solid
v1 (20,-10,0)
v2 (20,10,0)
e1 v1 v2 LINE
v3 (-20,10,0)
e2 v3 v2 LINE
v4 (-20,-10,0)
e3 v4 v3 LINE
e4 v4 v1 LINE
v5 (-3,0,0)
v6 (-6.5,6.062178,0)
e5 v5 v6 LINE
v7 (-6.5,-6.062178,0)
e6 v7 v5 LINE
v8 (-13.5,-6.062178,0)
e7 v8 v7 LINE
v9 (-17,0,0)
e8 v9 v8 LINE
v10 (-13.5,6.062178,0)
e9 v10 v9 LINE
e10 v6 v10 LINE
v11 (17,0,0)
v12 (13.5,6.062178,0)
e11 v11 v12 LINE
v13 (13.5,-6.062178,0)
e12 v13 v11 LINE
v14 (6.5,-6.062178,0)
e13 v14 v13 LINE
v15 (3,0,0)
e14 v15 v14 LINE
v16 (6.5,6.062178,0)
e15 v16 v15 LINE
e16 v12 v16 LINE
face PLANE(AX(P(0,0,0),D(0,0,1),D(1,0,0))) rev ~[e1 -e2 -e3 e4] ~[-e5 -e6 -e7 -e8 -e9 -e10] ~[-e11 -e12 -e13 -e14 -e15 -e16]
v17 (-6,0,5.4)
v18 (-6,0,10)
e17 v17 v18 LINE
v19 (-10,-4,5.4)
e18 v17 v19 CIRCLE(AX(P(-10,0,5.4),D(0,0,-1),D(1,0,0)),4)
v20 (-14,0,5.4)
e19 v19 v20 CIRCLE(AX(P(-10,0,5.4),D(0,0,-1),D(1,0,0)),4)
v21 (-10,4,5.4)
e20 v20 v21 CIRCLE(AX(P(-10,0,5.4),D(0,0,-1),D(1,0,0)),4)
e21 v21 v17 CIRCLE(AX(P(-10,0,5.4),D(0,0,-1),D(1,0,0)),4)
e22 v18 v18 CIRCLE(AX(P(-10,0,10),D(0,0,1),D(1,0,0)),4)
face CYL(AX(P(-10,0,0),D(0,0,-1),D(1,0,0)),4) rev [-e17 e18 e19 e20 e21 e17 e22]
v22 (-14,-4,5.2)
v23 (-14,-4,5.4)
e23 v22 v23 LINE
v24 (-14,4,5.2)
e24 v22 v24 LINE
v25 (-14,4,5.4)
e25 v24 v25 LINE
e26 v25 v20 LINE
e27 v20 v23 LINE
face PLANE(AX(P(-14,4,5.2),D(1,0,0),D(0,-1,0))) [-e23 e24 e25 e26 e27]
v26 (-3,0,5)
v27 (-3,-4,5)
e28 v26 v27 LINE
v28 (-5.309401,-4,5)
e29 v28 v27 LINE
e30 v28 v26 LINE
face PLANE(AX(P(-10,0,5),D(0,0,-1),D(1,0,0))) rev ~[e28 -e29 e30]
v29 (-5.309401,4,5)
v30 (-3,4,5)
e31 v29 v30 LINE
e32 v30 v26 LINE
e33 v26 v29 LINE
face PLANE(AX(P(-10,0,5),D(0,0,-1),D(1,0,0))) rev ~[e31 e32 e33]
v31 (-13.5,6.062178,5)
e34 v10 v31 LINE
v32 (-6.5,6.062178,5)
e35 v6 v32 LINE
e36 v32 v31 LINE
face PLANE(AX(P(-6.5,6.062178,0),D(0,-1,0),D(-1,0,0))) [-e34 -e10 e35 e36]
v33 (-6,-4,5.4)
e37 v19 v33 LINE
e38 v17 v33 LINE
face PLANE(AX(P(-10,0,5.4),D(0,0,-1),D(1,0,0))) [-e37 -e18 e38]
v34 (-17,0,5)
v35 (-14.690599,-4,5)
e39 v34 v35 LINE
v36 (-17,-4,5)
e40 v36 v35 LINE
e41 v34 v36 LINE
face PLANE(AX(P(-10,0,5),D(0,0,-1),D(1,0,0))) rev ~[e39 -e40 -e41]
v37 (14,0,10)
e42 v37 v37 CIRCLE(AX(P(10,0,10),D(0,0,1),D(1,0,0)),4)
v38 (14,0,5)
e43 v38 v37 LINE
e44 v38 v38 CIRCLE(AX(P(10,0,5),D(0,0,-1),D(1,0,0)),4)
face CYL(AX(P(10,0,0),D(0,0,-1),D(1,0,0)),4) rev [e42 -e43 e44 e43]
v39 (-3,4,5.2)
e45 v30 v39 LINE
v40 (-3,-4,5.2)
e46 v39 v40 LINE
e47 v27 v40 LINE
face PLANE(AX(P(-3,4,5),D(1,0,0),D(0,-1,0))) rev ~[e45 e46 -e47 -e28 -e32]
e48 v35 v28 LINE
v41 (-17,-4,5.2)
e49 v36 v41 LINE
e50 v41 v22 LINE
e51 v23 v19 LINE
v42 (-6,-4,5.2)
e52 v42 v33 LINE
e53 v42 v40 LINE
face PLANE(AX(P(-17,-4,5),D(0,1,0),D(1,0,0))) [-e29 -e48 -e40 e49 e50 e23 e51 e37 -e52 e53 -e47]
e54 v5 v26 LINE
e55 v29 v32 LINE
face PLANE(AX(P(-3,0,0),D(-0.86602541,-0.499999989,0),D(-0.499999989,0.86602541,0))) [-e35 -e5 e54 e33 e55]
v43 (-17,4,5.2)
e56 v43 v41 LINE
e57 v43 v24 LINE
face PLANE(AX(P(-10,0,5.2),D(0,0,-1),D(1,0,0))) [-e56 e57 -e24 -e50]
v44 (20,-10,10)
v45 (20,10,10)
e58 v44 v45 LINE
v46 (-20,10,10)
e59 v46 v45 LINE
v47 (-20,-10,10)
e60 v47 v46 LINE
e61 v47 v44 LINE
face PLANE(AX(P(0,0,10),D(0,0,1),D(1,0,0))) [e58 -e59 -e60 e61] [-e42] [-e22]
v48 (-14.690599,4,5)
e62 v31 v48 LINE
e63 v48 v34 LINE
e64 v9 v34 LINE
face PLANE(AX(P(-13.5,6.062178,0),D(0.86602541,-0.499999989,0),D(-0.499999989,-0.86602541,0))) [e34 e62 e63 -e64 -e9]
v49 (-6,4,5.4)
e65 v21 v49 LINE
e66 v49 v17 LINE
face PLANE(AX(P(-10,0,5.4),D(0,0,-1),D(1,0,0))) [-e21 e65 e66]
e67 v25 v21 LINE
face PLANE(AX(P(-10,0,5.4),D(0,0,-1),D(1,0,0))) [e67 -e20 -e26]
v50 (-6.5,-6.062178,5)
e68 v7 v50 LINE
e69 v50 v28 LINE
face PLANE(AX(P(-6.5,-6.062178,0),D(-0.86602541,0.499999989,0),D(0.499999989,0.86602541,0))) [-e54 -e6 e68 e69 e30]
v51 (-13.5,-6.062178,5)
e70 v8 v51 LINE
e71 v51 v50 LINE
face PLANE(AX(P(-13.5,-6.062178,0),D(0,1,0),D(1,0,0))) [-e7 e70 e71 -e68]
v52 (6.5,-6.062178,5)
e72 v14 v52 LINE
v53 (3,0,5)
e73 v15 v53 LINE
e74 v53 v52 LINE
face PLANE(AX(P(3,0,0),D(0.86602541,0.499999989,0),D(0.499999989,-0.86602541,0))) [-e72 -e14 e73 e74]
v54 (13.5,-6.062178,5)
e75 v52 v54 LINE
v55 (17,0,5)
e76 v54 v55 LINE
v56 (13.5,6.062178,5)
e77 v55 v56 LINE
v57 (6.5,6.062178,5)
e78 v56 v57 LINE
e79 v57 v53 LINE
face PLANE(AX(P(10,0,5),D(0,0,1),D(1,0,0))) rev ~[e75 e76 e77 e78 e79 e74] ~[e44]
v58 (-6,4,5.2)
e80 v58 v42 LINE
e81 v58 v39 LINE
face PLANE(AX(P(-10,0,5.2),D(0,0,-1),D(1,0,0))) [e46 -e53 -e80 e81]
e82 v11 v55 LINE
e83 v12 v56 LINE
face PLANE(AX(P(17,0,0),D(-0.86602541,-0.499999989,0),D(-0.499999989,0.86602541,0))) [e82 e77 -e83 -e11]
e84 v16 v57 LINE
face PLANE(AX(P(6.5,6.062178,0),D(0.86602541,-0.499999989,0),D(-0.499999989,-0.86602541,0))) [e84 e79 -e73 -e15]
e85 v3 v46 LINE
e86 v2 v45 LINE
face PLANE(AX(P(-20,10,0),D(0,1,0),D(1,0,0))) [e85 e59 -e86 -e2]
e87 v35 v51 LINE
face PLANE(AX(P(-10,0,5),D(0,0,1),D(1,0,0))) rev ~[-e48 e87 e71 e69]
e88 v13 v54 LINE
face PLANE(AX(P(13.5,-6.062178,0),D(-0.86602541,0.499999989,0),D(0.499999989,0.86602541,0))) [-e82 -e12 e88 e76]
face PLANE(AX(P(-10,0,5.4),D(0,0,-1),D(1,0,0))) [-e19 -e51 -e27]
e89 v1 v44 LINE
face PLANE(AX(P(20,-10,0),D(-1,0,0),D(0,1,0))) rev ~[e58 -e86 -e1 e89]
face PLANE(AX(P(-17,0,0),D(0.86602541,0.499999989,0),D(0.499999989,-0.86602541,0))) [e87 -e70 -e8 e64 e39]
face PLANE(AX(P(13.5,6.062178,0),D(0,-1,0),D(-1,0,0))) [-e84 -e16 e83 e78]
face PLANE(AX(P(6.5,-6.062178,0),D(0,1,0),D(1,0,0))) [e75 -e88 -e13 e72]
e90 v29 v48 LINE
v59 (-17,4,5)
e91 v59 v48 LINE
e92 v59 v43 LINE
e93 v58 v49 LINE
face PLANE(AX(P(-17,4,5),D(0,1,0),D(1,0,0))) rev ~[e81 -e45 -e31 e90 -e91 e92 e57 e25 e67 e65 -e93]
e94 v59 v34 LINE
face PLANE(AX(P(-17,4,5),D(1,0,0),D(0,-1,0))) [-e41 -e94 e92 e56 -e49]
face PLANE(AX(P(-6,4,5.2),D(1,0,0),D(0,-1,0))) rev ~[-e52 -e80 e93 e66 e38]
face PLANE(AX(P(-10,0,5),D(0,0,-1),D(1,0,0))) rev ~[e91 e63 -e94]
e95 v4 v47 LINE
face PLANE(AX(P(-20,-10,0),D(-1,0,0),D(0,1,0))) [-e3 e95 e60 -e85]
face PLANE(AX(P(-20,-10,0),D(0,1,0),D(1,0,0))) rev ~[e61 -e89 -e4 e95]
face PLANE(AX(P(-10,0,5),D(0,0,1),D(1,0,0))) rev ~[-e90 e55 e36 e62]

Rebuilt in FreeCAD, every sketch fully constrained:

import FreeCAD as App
import Part
import Sketcher

V = App.Vector
Q = App.Units.Quantity


def add_polygon(sketch, points):
    """Adds a closed chain of lines whose ends are joined by coincident constraints."""
    first, n = sketch.GeometryCount, len(points)
    for a, b in zip(points, points[1:] + points[:1]):
        sketch.addGeometry(Part.LineSegment(App.Vector(*a, 0), App.Vector(*b, 0)), False)
    for i in range(n):
        sketch.addConstraint(Sketcher.Constraint("Coincident", first + i, 2, first + (i + 1) % n, 1))

doc = App.newDocument("Part")
body = doc.addObject("PartDesign::Body", "Body")

# Sketch on XY plane
sketch1 = body.newObject("Sketcher::SketchObject", "Sketch")
sketch1.AttachmentSupport = (doc.getObject("XY_Plane"), [""])
sketch1.MapMode = "FlatFace"
add_polygon(sketch1, [(-20, 10), (-20, -10), (20, -10), (20, 10)])  # lines 0-3
sketch1.addGeometry(Part.Circle(V(-10, 0, 0), V(0, 0, 1), 4), False)  # 4
sketch1.addGeometry(Part.Circle(V(10, 0, 0), V(0, 0, 1), 4), False)  # 5
sketch1.addConstraint(Sketcher.Constraint("Vertical", 0))
sketch1.addConstraint(Sketcher.Constraint("Horizontal", 1))
sketch1.addConstraint(Sketcher.Constraint("Vertical", 2))
sketch1.addConstraint(Sketcher.Constraint("Horizontal", 3))
sketch1.addConstraint(Sketcher.Constraint("Equal", 4, 5))
sketch1.addConstraint(Sketcher.Constraint("Symmetric", 4, 3, 5, 3, -1, 1))
sketch1.addConstraint(Sketcher.Constraint("Symmetric", 0, 2, 2, 2, -1, 1))
sketch1.addConstraint(Sketcher.Constraint("PointOnObject", 4, 3, -1))
sketch1.addConstraint(Sketcher.Constraint("Diameter", 4, 8.0))
sketch1.addConstraint(Sketcher.Constraint("DistanceX", 1, 1, 1, 2, 40.0))
sketch1.addConstraint(Sketcher.Constraint("DistanceY", 0, 2, 0, 1, 20.0))
sketch1.addConstraint(Sketcher.Constraint("DistanceX", 4, 3, -1, 1, 10.0))
pad1 = body.newObject("PartDesign::Pad", "Pad")
pad1.Profile = sketch1
pad1.Length = 10

# Sketch on XY plane
sketch2 = body.newObject("Sketcher::SketchObject", "Sketch001")
sketch2.AttachmentSupport = (doc.getObject("XY_Plane"), [""])
sketch2.MapMode = "FlatFace"
add_polygon(sketch2, [(-6, 6), (-14, 6), (-17, 0), (-14, -6), (-6, -6), (-3, 0)])  # lines 0-5
add_polygon(sketch2, [(14, 6), (6, 6), (3, 0), (6, -6), (14, -6), (17, 0)])  # lines 6-11
sketch2.addConstraint(Sketcher.Constraint("Horizontal", 0))
sketch2.addConstraint(Sketcher.Constraint("Horizontal", 3))
sketch2.addConstraint(Sketcher.Constraint("Horizontal", 6))
sketch2.addConstraint(Sketcher.Constraint("Horizontal", 9))
sketch2.addConstraint(Sketcher.Constraint("Symmetric", 3, 2, 6, 2, -1, 1))
sketch2.addConstraint(Sketcher.Constraint("Symmetric", 4, 2, 7, 2, -1, 1))
sketch2.addConstraint(Sketcher.Constraint("Symmetric", 5, 2, 8, 2, -1, 1))
sketch2.addConstraint(Sketcher.Constraint("Symmetric", 1, 2, 10, 2, -1, 1))
sketch2.addConstraint(Sketcher.Constraint("Symmetric", 5, 2, 6, 2, -2))
sketch2.addConstraint(Sketcher.Constraint("PointOnObject", 1, 2, -1))
sketch2.addConstraint(Sketcher.Constraint("PointOnObject", 4, 2, -1))
sketch2.addConstraint(Sketcher.Constraint("Parallel", 1, 4))
sketch2.addConstraint(Sketcher.Constraint("Parallel", 2, 5))
sketch2.addConstraint(Sketcher.Constraint("Parallel", 7, 10))
sketch2.addConstraint(Sketcher.Constraint("Parallel", 8, 11))
sketch2.addConstraint(Sketcher.Constraint("DistanceX", 0, 2, 0, 1, 7.0))
sketch2.addConstraint(Sketcher.Constraint("Angle", 1, Q("-119.999999 deg")))
sketch2.addConstraint(Sketcher.Constraint("Distance", 1, 7.0))
sketch2.addConstraint(Sketcher.Constraint("DistanceX", 1, 2, -1, 1, 17.0))
pocket1 = body.newObject("PartDesign::Pocket", "Pocket")
pocket1.Profile = sketch2
pocket1.Length = 5
pocket1.Reversed = True

# Sketch on XY plane
sketch3 = body.newObject("Sketcher::SketchObject", "Sketch002")
sketch3.AttachmentSupport = (doc.getObject("XY_Plane"), [""])
sketch3.MapMode = "FlatFace"
sketch3.AttachmentOffset = App.Placement(V(0, 0, 5), App.Rotation())
add_polygon(sketch3, [(-17, -4), (-17, 4), (-3, 4), (-3, -4)])  # lines 0-3
sketch3.addConstraint(Sketcher.Constraint("Vertical", 0))
sketch3.addConstraint(Sketcher.Constraint("Horizontal", 1))
sketch3.addConstraint(Sketcher.Constraint("Vertical", 2))
sketch3.addConstraint(Sketcher.Constraint("Horizontal", 3))
sketch3.addConstraint(Sketcher.Constraint("DistanceX", 1, 1, 1, 2, 14.0))
sketch3.addConstraint(Sketcher.Constraint("DistanceY", 0, 1, 0, 2, 8.0))
sketch3.addConstraint(Sketcher.Constraint("DistanceX", 0, 2, -1, 1, 17.0))
sketch3.addConstraint(Sketcher.Constraint("DistanceY", -1, 1, 0, 2, 4.0))
pocket2 = body.newObject("PartDesign::Pocket", "Pocket001")
pocket2.Profile = sketch3
pocket2.Length = 0.2
pocket2.Reversed = True

# Sketch on XY plane
sketch4 = body.newObject("Sketcher::SketchObject", "Sketch003")
sketch4.AttachmentSupport = (doc.getObject("XY_Plane"), [""])
sketch4.MapMode = "FlatFace"
sketch4.AttachmentOffset = App.Placement(V(0, 0, 5.2), App.Rotation())
add_polygon(sketch4, [(-14, -4), (-14, 4), (-6, 4), (-6, -4)])  # lines 0-3
sketch4.addConstraint(Sketcher.Constraint("Vertical", 0))
sketch4.addConstraint(Sketcher.Constraint("Horizontal", 1))
sketch4.addConstraint(Sketcher.Constraint("Vertical", 2))
sketch4.addConstraint(Sketcher.Constraint("Horizontal", 3))
sketch4.addConstraint(Sketcher.Constraint("Equal", 3, 0))
sketch4.addConstraint(Sketcher.Constraint("DistanceX", 1, 1, 1, 2, 8.0))
sketch4.addConstraint(Sketcher.Constraint("DistanceX", 0, 2, -1, 1, 14.0))
sketch4.addConstraint(Sketcher.Constraint("DistanceY", -1, 1, 0, 2, 4.0))
pocket3 = body.newObject("PartDesign::Pocket", "Pocket002")
pocket3.Profile = sketch4
pocket3.Length = 0.2
pocket3.Reversed = True

doc.recompute()
